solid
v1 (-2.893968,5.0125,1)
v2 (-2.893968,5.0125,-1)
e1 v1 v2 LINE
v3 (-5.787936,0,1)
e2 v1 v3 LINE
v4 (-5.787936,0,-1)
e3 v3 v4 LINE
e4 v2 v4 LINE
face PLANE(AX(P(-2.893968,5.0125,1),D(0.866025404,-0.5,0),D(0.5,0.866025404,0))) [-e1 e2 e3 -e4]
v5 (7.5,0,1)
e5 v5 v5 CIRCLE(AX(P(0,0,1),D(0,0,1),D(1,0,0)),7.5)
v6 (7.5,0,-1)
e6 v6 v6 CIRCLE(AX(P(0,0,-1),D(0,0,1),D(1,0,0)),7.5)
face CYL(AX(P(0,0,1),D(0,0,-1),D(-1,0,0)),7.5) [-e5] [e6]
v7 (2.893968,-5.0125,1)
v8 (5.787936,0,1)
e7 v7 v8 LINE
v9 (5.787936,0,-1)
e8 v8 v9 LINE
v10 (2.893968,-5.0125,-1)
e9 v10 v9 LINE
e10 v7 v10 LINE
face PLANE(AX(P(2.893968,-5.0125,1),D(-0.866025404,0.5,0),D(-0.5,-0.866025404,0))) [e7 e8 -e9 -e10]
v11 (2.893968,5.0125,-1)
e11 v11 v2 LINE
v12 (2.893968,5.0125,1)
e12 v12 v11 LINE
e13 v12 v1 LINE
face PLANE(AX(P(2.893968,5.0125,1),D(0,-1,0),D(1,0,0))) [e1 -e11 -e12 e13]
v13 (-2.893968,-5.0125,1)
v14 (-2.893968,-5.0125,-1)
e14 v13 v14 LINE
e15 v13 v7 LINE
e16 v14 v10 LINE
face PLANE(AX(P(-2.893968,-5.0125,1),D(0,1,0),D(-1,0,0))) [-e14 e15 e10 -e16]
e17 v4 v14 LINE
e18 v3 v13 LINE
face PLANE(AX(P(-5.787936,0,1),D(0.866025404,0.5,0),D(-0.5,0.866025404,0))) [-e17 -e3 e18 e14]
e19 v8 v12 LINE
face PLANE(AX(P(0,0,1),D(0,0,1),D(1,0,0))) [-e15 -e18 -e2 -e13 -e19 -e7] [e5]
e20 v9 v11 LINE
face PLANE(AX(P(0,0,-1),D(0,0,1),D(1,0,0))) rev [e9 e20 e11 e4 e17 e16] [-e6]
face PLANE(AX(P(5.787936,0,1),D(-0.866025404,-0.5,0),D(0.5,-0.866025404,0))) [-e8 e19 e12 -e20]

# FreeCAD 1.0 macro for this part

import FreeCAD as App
import Part
import Sketcher
Q = App.Units.Quantity

doc = App.newDocument("Part")
body = doc.addObject("PartDesign::Body", "Body")

sketch1 = doc.addObject("Sketcher::SketchObject", "Sketch")
body.addObject(sketch1)
sketch1.AttachmentSupport = (doc.XY_Plane, [""])
sketch1.MapMode = "FlatFace"
sketch1.addGeometry([
    Part.Circle(App.Vector(0, 0, 0), App.Vector(0, 0, 1), 8),
    Part.LineSegment(App.Vector(3, 5, 0), App.Vector(6, 0, 0)),
    Part.LineSegment(App.Vector(6, 0, 0), App.Vector(3, -5, 0)),
    Part.LineSegment(App.Vector(3, -5, 0), App.Vector(-3, -5, 0)),
    Part.LineSegment(App.Vector(-3, -5, 0), App.Vector(-6, 0, 0)),
    Part.LineSegment(App.Vector(-6, 0, 0), App.Vector(-3, 5, 0)),
    Part.LineSegment(App.Vector(-3, 5, 0), App.Vector(3, 5, 0)),
], False)
sketch1.addConstraint([
    Sketcher.Constraint("Coincident", 1, 2, 2, 1),
    Sketcher.Constraint("Coincident", 2, 2, 3, 1),
    Sketcher.Constraint("Coincident", 3, 2, 4, 1),
    Sketcher.Constraint("Coincident", 4, 2, 5, 1),
    Sketcher.Constraint("Coincident", 5, 2, 6, 1),
    Sketcher.Constraint("Coincident", 6, 2, 1, 1),
    Sketcher.Constraint("Horizontal", 3),
    Sketcher.Constraint("Horizontal", 6),
    Sketcher.Constraint("Coincident", 0, 3, -1, 1),
    Sketcher.Constraint("Symmetric", 1, 2, 4, 2, -1, 1),
    Sketcher.Constraint("Symmetric", 2, 2, 5, 2, -1, 1),
    Sketcher.Constraint("PointOnObject", 1, 2, -1),
    Sketcher.Constraint("Parallel", 1, 4),
    Sketcher.Constraint("Vertical", 3, 2, 5, 2),
    Sketcher.Constraint("Diameter", 0, 15.0),
    Sketcher.Constraint("Angle", 1, Q("-60 deg")),
    Sketcher.Constraint("DistanceY", 3, 2, 5, 2, 10.025),
    Sketcher.Constraint("DistanceX", 3, 2, 3, 1, 5.787936),
])
pad1 = doc.addObject("PartDesign::Pad", "Pad")
body.addObject(pad1)
pad1.Profile = sketch1
pad1.Length = 2
pad1.Midplane = True

doc.recompute()
